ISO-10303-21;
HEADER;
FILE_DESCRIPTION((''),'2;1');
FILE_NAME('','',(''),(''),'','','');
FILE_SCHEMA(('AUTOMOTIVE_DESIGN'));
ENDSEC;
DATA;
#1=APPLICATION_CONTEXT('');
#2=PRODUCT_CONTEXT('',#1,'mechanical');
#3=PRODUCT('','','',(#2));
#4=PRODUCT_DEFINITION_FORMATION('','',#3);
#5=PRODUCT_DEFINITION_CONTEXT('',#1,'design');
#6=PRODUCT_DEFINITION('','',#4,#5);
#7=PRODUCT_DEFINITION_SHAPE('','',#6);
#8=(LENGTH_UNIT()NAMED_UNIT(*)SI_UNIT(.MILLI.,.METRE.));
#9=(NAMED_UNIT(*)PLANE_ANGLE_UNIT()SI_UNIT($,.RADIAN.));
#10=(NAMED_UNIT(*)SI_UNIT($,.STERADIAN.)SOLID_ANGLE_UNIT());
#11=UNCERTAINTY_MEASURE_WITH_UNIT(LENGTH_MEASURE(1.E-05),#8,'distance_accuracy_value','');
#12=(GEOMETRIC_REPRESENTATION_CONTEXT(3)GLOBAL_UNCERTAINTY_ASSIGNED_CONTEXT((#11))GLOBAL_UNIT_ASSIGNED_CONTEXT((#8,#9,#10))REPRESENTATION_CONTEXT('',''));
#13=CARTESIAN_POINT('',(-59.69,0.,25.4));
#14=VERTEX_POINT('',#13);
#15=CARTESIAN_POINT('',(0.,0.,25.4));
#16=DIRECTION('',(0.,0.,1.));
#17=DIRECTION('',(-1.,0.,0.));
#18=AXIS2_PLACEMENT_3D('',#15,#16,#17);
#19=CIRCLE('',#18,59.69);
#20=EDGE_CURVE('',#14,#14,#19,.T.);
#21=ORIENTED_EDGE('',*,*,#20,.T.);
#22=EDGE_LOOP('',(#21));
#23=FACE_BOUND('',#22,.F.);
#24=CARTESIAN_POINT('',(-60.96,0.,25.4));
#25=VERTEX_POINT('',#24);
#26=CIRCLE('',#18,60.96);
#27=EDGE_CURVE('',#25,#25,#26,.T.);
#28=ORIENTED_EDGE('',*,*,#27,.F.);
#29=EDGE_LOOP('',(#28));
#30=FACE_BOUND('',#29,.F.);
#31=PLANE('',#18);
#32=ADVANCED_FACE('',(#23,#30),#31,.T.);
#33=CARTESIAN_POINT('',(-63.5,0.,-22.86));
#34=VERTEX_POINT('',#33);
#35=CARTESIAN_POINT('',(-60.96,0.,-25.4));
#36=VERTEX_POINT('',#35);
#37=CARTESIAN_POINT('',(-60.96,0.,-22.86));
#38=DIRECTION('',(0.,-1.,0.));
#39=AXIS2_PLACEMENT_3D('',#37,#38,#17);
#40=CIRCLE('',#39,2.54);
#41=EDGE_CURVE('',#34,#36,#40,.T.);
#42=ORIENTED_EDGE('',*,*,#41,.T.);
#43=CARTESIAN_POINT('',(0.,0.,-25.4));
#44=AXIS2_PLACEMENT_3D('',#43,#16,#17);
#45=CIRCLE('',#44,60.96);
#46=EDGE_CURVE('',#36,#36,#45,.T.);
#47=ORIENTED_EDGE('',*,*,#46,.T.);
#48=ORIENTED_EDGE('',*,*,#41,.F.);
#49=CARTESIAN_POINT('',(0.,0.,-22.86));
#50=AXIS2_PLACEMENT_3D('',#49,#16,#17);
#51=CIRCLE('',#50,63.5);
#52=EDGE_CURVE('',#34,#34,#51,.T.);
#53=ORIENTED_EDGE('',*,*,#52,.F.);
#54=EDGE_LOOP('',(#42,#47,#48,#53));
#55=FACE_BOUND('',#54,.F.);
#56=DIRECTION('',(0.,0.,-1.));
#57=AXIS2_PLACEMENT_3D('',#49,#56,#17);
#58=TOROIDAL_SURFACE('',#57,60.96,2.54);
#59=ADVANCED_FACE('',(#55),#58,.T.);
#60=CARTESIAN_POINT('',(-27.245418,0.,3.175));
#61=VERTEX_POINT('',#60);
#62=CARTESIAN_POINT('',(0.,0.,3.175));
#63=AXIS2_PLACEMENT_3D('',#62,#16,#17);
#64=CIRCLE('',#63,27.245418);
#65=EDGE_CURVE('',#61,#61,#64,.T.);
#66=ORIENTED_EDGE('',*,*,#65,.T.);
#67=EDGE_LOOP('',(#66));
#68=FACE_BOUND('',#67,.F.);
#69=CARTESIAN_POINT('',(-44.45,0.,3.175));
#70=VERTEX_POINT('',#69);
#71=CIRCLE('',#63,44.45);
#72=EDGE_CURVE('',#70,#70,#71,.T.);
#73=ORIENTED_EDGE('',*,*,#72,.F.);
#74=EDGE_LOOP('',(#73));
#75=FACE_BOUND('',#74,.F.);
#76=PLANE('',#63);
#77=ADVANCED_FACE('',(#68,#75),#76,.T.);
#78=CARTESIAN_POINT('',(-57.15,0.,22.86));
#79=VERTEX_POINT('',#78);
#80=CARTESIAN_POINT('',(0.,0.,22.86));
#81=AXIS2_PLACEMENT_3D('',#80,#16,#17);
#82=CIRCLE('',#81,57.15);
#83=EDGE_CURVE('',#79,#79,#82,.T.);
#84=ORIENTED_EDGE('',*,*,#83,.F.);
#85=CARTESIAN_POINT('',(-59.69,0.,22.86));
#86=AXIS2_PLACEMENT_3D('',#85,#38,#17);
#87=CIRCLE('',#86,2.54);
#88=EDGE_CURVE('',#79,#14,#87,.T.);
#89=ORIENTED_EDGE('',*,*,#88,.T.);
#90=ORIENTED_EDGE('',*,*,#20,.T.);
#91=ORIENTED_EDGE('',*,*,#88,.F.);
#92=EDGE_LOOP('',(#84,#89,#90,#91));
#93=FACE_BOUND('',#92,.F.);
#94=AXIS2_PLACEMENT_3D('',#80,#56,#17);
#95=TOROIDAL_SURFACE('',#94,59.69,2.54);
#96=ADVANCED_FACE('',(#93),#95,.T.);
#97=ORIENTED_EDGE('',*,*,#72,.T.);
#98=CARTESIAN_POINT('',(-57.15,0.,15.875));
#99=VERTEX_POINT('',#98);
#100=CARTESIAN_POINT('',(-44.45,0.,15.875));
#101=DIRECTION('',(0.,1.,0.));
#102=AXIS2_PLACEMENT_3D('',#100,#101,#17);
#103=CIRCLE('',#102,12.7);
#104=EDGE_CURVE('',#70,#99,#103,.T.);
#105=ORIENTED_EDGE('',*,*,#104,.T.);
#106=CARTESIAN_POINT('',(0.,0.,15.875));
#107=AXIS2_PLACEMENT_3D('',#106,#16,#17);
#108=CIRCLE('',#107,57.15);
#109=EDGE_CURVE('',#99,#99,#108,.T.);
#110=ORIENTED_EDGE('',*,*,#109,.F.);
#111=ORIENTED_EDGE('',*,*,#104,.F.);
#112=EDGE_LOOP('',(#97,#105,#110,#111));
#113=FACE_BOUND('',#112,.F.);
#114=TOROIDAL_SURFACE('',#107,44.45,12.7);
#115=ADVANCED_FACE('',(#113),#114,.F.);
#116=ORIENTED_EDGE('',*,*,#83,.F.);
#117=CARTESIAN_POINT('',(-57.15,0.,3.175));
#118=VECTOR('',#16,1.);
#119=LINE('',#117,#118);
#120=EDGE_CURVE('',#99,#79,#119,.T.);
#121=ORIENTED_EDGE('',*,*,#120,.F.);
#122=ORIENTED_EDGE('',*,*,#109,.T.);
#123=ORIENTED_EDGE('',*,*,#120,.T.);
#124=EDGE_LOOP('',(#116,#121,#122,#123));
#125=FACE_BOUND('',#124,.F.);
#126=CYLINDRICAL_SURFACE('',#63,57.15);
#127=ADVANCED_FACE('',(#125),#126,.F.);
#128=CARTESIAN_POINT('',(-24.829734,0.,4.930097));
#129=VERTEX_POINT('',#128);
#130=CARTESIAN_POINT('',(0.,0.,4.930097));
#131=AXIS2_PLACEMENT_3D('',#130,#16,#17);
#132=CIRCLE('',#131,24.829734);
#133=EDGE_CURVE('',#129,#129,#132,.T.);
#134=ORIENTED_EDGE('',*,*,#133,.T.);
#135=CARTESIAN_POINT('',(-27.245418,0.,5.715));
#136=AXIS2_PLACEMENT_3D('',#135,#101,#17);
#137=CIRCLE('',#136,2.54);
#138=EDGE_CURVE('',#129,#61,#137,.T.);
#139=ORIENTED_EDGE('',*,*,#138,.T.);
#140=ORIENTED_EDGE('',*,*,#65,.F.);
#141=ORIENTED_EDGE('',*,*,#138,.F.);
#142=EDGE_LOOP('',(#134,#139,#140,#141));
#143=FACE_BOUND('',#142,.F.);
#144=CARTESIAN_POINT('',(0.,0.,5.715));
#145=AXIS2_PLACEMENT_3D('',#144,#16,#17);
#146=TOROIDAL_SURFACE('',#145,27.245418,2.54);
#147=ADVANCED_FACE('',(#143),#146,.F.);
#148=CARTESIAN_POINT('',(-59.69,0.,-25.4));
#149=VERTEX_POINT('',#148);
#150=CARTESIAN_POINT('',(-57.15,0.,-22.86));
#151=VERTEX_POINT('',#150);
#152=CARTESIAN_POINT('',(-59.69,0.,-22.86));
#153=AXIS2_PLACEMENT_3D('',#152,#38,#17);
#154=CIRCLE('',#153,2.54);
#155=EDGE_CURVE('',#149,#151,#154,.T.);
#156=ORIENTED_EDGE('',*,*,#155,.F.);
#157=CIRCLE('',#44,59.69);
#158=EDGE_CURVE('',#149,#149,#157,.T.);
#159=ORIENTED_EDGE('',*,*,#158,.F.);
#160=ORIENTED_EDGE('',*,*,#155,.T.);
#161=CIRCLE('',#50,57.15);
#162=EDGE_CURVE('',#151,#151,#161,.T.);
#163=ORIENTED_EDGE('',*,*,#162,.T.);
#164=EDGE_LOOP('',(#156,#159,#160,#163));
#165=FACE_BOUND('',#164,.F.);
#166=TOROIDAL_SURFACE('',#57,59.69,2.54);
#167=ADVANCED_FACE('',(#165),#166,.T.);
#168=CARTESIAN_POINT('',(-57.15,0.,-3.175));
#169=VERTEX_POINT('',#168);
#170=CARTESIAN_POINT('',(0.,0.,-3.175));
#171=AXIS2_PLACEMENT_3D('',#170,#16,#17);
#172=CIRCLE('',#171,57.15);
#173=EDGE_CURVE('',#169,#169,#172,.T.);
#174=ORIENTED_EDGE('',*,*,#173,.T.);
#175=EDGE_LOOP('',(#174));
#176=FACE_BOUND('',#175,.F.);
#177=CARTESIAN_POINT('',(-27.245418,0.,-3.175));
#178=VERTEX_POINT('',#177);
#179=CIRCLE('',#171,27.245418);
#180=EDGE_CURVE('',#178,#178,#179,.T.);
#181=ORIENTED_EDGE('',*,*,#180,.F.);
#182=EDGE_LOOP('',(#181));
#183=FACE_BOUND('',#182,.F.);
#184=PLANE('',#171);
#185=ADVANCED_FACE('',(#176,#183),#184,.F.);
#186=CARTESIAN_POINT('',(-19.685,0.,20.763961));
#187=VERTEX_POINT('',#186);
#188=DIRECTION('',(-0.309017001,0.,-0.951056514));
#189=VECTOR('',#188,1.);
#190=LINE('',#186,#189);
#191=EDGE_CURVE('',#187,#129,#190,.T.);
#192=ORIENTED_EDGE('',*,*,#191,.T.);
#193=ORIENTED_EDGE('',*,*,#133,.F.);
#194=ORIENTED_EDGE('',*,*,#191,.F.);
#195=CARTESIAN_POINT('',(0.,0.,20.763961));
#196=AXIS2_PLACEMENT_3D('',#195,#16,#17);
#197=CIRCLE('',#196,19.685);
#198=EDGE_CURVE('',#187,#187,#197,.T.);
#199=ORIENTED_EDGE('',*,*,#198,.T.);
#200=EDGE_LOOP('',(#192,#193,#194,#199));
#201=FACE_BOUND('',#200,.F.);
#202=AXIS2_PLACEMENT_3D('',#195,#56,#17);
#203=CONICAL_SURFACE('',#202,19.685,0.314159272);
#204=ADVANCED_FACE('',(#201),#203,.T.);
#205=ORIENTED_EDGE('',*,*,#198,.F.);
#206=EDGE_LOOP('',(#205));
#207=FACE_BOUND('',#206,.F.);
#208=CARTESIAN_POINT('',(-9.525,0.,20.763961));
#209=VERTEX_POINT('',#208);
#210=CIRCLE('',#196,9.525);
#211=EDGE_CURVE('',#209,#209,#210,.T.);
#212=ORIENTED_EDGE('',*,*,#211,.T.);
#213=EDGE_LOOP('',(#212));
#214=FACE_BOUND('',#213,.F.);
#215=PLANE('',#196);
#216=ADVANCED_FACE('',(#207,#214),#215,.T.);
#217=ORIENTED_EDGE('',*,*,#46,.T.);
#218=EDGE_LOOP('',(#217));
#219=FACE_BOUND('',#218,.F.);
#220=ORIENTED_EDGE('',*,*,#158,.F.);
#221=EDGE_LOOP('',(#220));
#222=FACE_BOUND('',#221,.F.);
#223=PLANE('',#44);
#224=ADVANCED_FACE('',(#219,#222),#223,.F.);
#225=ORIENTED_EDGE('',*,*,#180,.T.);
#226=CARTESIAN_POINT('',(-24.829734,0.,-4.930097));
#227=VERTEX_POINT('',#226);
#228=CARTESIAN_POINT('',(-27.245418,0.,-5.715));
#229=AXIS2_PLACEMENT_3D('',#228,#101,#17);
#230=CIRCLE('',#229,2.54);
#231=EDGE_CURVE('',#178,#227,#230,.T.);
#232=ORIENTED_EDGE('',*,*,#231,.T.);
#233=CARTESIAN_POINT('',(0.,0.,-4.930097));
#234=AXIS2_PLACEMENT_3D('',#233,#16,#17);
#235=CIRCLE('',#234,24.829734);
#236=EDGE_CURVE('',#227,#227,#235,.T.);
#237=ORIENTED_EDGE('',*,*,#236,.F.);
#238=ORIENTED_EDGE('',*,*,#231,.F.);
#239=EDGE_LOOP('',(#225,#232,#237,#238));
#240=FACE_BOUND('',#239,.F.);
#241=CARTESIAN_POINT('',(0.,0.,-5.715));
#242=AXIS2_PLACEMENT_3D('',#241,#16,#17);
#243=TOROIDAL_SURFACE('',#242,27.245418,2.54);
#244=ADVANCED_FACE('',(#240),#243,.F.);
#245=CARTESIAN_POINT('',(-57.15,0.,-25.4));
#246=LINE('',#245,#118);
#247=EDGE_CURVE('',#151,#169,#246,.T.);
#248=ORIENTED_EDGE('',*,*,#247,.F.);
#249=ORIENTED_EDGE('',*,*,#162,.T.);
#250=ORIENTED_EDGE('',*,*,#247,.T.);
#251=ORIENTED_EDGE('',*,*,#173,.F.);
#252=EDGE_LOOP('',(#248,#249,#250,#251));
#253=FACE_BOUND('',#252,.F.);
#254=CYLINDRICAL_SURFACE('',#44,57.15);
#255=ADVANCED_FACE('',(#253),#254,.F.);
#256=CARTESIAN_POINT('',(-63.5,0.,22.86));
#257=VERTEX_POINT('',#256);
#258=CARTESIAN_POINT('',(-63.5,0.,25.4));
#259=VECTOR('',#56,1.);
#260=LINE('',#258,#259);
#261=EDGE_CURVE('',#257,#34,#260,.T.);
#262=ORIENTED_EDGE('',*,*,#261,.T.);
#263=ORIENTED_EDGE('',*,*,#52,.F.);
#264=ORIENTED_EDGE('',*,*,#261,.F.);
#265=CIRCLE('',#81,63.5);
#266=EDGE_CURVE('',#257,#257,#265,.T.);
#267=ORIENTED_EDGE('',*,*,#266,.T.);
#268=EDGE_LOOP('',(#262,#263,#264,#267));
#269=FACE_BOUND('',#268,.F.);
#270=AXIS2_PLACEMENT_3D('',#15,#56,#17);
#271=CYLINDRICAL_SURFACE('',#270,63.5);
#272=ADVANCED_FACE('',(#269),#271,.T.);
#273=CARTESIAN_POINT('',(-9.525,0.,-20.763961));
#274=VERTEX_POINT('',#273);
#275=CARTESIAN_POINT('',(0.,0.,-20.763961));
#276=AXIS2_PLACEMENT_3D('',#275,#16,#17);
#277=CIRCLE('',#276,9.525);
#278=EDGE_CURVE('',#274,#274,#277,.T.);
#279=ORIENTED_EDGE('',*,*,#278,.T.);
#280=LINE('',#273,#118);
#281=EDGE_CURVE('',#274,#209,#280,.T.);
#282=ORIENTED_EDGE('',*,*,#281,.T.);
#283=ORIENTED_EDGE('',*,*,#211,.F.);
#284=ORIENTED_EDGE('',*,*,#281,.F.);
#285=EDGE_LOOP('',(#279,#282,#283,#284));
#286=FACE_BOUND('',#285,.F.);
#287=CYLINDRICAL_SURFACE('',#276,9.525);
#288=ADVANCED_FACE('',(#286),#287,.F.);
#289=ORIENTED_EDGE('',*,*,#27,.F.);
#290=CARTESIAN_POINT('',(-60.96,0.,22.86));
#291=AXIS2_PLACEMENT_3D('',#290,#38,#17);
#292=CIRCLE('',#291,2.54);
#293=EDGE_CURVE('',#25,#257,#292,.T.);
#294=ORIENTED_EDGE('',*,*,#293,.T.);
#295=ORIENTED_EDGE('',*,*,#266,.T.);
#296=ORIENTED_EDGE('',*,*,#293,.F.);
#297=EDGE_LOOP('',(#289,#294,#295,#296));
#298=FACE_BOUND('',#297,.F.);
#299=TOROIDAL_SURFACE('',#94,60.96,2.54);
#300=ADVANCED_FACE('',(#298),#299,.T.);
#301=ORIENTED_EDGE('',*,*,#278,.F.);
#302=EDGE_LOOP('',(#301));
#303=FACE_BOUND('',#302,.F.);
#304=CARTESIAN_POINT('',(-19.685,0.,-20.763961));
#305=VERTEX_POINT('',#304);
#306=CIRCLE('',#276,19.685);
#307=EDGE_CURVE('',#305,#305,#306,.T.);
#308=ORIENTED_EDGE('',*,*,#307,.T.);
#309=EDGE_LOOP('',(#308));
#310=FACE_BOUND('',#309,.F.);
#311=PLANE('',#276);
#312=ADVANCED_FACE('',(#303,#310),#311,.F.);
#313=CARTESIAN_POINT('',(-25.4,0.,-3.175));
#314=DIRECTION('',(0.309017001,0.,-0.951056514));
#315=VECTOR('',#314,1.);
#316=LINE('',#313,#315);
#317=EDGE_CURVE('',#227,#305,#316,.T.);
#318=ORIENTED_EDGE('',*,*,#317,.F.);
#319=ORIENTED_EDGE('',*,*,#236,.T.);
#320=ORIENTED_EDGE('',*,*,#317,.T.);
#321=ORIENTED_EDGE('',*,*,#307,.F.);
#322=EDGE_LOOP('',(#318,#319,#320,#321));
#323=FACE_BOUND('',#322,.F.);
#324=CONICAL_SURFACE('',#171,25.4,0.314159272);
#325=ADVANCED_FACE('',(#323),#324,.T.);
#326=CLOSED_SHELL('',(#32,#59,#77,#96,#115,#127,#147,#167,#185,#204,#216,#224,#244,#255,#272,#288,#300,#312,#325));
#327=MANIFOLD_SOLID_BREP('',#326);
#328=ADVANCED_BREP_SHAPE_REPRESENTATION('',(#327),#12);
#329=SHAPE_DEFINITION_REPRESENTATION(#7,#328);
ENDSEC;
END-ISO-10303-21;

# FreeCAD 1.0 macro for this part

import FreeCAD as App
import Part
import Sketcher
Q = App.Units.Quantity


def edges_at(feature, points):
    """Names of the edges that pass closest to the given points."""
    edges = feature.Shape.Edges
    near = lambda p: min(range(len(edges)), key=lambda i: edges[i].distToShape(Part.Vertex(*p))[0])
    return sorted({f"Edge{near(p) + 1}" for p in points})

doc = App.newDocument("Part")
params = doc.addObject("Spreadsheet::Sheet", "Params")
for row, (alias, value) in enumerate([
    ("sketch1_height", "2 in"),
    ("sketch1_width", "0.4 in"),
    ("sketch1_width2", "1.25 in"),
    ("sketch1_width3", "0.25 in"),
    ("sketch1_height2", "0.875 in"),
    ("revolution_angle", "360 deg"),
    ("fillet_radius", "0.1 in"),
    ("fillet2_radius", "0.5 in"),
], start=1):
    params.set(f"A{row}", alias)
    params.set(f"B{row}", "=" + value)
    params.setAlias(f"B{row}", alias)

body = doc.addObject("PartDesign::Body", "Body")

# Sketch on XZ plane
sketch1 = body.newObject("Sketcher::SketchObject", "Sketch")
sketch1.AttachmentSupport = (doc.getObject("XZ_Plane"), [""])
sketch1.MapMode = "FlatFace"
sketch1.addGeometry(Part.LineSegment(App.Vector(-10, -21, 0), App.Vector(-10, 21, 0)), False)
sketch1.addGeometry(Part.LineSegment(App.Vector(-10, 21, 0), App.Vector(-20, 21, 0)), False)
sketch1.addGeometry(Part.LineSegment(App.Vector(-20, 21, 0), App.Vector(-25, 3, 0)), False)
sketch1.addGeometry(Part.LineSegment(App.Vector(-25, 3, 0), App.Vector(-57, 3, 0)), False)
sketch1.addGeometry(Part.LineSegment(App.Vector(-57, 3, 0), App.Vector(-57, 25, 0)), False)
sketch1.addGeometry(Part.LineSegment(App.Vector(-57, 25, 0), App.Vector(-64, 25, 0)), False)
sketch1.addGeometry(Part.LineSegment(App.Vector(-64, 25, 0), App.Vector(-64, -25, 0)), False)
sketch1.addGeometry(Part.LineSegment(App.Vector(-64, -25, 0), App.Vector(-57, -25, 0)), False)
sketch1.addGeometry(Part.LineSegment(App.Vector(-57, -25, 0), App.Vector(-57, -3, 0)), False)
sketch1.addGeometry(Part.LineSegment(App.Vector(-57, -3, 0), App.Vector(-25, -3, 0)), False)
sketch1.addGeometry(Part.LineSegment(App.Vector(-25, -3, 0), App.Vector(-20, -21, 0)), False)
sketch1.addGeometry(Part.LineSegment(App.Vector(-20, -21, 0), App.Vector(-10, -21, 0)), False)
sketch1.addConstraint(Sketcher.Constraint("Coincident", 0, 2, 1, 1))
sketch1.addConstraint(Sketcher.Constraint("Coincident", 1, 2, 2, 1))
sketch1.addConstraint(Sketcher.Constraint("Coincident", 2, 2, 3, 1))
sketch1.addConstraint(Sketcher.Constraint("Coincident", 3, 2, 4, 1))
sketch1.addConstraint(Sketcher.Constraint("Coincident", 4, 2, 5, 1))
sketch1.addConstraint(Sketcher.Constraint("Coincident", 5, 2, 6, 1))
sketch1.addConstraint(Sketcher.Constraint("Coincident", 6, 2, 7, 1))
sketch1.addConstraint(Sketcher.Constraint("Coincident", 7, 2, 8, 1))
sketch1.addConstraint(Sketcher.Constraint("Coincident", 8, 2, 9, 1))
sketch1.addConstraint(Sketcher.Constraint("Coincident", 9, 2, 10, 1))
sketch1.addConstraint(Sketcher.Constraint("Coincident", 10, 2, 11, 1))
sketch1.addConstraint(Sketcher.Constraint("Coincident", 11, 2, 0, 1))
sketch1.addConstraint(Sketcher.Constraint("Vertical", 0))
sketch1.addConstraint(Sketcher.Constraint("Horizontal", 1))
sketch1.addConstraint(Sketcher.Constraint("Horizontal", 3))
sketch1.addConstraint(Sketcher.Constraint("Vertical", 4))
sketch1.addConstraint(Sketcher.Constraint("Horizontal", 5))
sketch1.addConstraint(Sketcher.Constraint("Vertical", 6))
sketch1.addConstraint(Sketcher.Constraint("Horizontal", 7))
sketch1.addConstraint(Sketcher.Constraint("Vertical", 8))
sketch1.addConstraint(Sketcher.Constraint("Horizontal", 9))
sketch1.addConstraint(Sketcher.Constraint("Horizontal", 11))
sketch1.addConstraint(Sketcher.Constraint("Symmetric", 4, 2, 7, 2, -1))
sketch1.addConstraint(Sketcher.Constraint("Symmetric", 2, 2, 9, 2, -1))
sketch1.addConstraint(Sketcher.Constraint("Symmetric", 1, 2, 10, 2, -1))
sketch1.addConstraint(Sketcher.Constraint("DistanceY", 6, 2, 6, 1, Q("2 in")))
sketch1.addConstraint(Sketcher.Constraint("DistanceX", 1, 2, 1, 1, Q("0.4 in")))
sketch1.addConstraint(Sketcher.Constraint("DistanceX", 2, 2, -1, 1, Q("1 in")))
sketch1.addConstraint(Sketcher.Constraint("Angle", 2, Q("-108 deg")))
sketch1.addConstraint(Sketcher.Constraint("DistanceX", 3, 2, 3, 1, Q("1.25 in")))
sketch1.addConstraint(Sketcher.Constraint("DistanceX", 5, 2, 5, 1, Q("0.25 in")))
sketch1.addConstraint(Sketcher.Constraint("DistanceY", 4, 1, 4, 2, Q("0.875 in")))
sketch1.addConstraint(Sketcher.Constraint("DistanceX", 0, 2, -1, 1, Q("0.375 in")))
sketch1.setExpression("Constraints[25]", "Params.sketch1_height")
sketch1.setExpression("Constraints[26]", "Params.sketch1_width")
sketch1.setExpression("Constraints[29]", "Params.sketch1_width2")
sketch1.setExpression("Constraints[30]", "Params.sketch1_width3")
sketch1.setExpression("Constraints[31]", "Params.sketch1_height2")
revolution = body.newObject("PartDesign::Revolution", "Revolution")
revolution.Profile = sketch1
revolution.ReferenceAxis = (sketch1, ["V_Axis"])
revolution.setExpression("Angle", "Params.revolution_angle")
doc.recompute()

fillet = body.newObject("PartDesign::Fillet", "Fillet")
fillet.Base = (revolution, edges_at(revolution, [
    (63.5, 0, 25.4),
    (57.15, 0, -25.4),
    (57.15, 0, 25.4),
    (63.5, 0, -25.4),
    (25.4, 0, -3.175),
    (25.4, 0, 3.175),
]))
fillet.setExpression("Radius", "Params.fillet_radius")
doc.recompute()

fillet2 = body.newObject("PartDesign::Fillet", "Fillet001")
fillet2.Base = (fillet, edges_at(fillet, [(57.15, 0, 3.175)]))
fillet2.setExpression("Radius", "Params.fillet2_radius")

doc.recompute()
